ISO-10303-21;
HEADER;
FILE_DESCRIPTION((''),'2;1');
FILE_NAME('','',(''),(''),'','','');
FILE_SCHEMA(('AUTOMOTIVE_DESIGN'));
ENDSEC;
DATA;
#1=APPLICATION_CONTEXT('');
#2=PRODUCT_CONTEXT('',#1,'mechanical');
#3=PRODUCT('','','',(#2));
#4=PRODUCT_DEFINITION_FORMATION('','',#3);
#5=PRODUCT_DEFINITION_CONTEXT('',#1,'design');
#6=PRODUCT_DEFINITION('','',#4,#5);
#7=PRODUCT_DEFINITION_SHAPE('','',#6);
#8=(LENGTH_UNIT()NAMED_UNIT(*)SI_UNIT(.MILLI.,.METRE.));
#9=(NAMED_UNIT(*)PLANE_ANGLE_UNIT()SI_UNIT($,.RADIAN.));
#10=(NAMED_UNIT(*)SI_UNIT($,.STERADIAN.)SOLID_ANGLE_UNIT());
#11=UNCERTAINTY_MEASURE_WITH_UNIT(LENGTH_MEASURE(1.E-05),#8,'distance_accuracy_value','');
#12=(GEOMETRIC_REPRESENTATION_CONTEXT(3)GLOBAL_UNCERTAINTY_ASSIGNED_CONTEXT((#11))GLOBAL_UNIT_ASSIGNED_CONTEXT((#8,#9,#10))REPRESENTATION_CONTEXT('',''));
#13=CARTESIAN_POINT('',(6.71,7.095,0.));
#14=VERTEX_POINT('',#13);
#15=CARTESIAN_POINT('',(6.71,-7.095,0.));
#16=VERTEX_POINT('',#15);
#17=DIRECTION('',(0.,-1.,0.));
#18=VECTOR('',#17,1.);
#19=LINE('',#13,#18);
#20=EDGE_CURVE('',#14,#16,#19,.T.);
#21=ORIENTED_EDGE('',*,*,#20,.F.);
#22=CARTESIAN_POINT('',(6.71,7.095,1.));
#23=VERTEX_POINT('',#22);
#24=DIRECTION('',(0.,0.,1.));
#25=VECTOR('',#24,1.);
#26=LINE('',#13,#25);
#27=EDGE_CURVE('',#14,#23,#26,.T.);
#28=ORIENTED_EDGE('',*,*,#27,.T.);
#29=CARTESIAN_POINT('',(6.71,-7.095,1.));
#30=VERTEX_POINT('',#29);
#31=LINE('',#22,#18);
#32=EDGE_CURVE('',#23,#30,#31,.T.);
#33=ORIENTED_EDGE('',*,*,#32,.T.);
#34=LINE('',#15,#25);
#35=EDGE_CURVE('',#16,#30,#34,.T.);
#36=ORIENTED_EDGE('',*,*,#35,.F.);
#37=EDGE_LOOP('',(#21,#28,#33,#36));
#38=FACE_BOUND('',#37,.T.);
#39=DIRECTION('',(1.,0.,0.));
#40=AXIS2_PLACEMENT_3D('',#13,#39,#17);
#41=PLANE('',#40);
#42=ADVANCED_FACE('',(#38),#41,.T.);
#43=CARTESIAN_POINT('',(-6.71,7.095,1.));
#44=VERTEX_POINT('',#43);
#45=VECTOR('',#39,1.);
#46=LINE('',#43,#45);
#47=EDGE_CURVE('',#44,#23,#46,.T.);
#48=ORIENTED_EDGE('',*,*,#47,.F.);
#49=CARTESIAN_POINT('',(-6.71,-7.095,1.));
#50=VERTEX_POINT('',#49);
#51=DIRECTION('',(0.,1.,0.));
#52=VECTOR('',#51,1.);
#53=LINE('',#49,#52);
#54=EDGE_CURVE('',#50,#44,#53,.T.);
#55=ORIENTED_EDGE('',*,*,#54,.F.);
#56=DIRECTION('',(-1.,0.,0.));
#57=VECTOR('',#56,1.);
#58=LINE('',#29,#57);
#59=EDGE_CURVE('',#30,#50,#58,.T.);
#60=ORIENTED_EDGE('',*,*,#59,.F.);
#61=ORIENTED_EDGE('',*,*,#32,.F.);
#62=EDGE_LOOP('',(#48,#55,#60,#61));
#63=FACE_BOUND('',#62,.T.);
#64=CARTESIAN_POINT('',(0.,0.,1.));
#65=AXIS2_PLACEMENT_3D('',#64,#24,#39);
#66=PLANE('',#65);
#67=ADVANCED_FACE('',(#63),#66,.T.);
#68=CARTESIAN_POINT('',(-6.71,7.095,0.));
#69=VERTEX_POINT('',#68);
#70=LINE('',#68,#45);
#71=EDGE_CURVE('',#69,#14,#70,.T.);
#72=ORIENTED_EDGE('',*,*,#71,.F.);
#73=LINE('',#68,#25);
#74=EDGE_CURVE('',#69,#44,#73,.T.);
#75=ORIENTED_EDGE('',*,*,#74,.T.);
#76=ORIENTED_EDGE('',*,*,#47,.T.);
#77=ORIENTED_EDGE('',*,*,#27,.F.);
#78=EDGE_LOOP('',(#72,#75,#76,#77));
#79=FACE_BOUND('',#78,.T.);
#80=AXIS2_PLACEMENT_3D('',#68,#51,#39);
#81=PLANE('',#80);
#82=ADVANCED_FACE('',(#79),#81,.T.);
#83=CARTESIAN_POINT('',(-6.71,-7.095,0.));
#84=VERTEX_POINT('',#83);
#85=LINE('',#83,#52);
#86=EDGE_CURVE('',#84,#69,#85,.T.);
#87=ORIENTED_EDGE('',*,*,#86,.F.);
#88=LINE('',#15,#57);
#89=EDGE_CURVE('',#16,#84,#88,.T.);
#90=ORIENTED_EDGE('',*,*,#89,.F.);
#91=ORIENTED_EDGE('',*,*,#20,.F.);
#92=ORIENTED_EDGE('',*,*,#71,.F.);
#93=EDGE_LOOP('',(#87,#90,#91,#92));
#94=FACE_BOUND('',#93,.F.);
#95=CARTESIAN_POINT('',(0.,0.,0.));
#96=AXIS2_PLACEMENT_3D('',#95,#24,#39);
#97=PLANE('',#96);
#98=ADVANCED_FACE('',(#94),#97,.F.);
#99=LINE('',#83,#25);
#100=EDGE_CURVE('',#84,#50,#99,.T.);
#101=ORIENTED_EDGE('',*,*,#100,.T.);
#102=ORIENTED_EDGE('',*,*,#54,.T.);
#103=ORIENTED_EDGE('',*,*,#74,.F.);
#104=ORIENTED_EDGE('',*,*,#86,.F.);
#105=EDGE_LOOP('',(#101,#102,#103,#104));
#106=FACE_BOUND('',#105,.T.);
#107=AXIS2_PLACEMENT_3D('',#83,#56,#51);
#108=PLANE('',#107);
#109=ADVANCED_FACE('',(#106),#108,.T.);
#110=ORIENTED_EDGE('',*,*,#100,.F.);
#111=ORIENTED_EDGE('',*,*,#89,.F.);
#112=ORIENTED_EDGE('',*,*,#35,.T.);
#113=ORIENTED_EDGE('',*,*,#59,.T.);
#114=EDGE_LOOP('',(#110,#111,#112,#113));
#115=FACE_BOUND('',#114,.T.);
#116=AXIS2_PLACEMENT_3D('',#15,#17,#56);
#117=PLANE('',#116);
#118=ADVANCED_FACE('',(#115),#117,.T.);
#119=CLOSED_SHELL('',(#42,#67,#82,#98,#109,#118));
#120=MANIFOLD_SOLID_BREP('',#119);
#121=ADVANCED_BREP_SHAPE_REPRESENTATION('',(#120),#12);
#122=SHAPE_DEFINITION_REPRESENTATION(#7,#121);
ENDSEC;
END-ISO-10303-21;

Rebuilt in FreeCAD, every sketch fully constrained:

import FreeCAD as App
import Part
import Sketcher

doc = App.newDocument("Part")
params = doc.addObject("Spreadsheet::Sheet", "Params")
for row, (alias, value) in enumerate([
    ("sketch1_width", "13.42 mm"),
    ("sketch1_height", "14.19 mm"),
    ("pad1_length", "1 mm"),
], start=1):
    params.set(f"A{row}", alias)
    params.set(f"B{row}", "=" + value)
    params.setAlias(f"B{row}", alias)

body = doc.addObject("PartDesign::Body", "Body")

# Sketch on XY plane
sketch1 = body.newObject("Sketcher::SketchObject", "Sketch")
sketch1.AttachmentSupport = (doc.getObject("XY_Plane"), [""])
sketch1.MapMode = "FlatFace"
sketch1.addGeometry(Part.LineSegment(App.Vector(7, 7, 0), App.Vector(-7, 7, 0)), False)
sketch1.addGeometry(Part.LineSegment(App.Vector(-7, 7, 0), App.Vector(-7, -7, 0)), False)
sketch1.addGeometry(Part.LineSegment(App.Vector(-7, -7, 0), App.Vector(7, -7, 0)), False)
sketch1.addGeometry(Part.LineSegment(App.Vector(7, -7, 0), App.Vector(7, 7, 0)), False)
sketch1.addConstraint(Sketcher.Constraint("Coincident", 0, 2, 1, 1))
sketch1.addConstraint(Sketcher.Constraint("Coincident", 1, 2, 2, 1))
sketch1.addConstraint(Sketcher.Constraint("Coincident", 2, 2, 3, 1))
sketch1.addConstraint(Sketcher.Constraint("Coincident", 3, 2, 0, 1))
sketch1.addConstraint(Sketcher.Constraint("Horizontal", 0))
sketch1.addConstraint(Sketcher.Constraint("Vertical", 1))
sketch1.addConstraint(Sketcher.Constraint("Horizontal", 2))
sketch1.addConstraint(Sketcher.Constraint("Vertical", 3))
sketch1.addConstraint(Sketcher.Constraint("Symmetric", 0, 2, 2, 2, -1, 1))
sketch1.addConstraint(Sketcher.Constraint("DistanceX", 0, 2, 0, 1, 13.42))
sketch1.addConstraint(Sketcher.Constraint("DistanceY", 1, 2, 1, 1, 14.19))
sketch1.setExpression("Constraints[9]", "Params.sketch1_width")
sketch1.setExpression("Constraints[10]", "Params.sketch1_height")
pad1 = body.newObject("PartDesign::Pad", "Pad")
pad1.Profile = sketch1
pad1.setExpression("Length", "Params.pad1_length")

doc.recompute()
